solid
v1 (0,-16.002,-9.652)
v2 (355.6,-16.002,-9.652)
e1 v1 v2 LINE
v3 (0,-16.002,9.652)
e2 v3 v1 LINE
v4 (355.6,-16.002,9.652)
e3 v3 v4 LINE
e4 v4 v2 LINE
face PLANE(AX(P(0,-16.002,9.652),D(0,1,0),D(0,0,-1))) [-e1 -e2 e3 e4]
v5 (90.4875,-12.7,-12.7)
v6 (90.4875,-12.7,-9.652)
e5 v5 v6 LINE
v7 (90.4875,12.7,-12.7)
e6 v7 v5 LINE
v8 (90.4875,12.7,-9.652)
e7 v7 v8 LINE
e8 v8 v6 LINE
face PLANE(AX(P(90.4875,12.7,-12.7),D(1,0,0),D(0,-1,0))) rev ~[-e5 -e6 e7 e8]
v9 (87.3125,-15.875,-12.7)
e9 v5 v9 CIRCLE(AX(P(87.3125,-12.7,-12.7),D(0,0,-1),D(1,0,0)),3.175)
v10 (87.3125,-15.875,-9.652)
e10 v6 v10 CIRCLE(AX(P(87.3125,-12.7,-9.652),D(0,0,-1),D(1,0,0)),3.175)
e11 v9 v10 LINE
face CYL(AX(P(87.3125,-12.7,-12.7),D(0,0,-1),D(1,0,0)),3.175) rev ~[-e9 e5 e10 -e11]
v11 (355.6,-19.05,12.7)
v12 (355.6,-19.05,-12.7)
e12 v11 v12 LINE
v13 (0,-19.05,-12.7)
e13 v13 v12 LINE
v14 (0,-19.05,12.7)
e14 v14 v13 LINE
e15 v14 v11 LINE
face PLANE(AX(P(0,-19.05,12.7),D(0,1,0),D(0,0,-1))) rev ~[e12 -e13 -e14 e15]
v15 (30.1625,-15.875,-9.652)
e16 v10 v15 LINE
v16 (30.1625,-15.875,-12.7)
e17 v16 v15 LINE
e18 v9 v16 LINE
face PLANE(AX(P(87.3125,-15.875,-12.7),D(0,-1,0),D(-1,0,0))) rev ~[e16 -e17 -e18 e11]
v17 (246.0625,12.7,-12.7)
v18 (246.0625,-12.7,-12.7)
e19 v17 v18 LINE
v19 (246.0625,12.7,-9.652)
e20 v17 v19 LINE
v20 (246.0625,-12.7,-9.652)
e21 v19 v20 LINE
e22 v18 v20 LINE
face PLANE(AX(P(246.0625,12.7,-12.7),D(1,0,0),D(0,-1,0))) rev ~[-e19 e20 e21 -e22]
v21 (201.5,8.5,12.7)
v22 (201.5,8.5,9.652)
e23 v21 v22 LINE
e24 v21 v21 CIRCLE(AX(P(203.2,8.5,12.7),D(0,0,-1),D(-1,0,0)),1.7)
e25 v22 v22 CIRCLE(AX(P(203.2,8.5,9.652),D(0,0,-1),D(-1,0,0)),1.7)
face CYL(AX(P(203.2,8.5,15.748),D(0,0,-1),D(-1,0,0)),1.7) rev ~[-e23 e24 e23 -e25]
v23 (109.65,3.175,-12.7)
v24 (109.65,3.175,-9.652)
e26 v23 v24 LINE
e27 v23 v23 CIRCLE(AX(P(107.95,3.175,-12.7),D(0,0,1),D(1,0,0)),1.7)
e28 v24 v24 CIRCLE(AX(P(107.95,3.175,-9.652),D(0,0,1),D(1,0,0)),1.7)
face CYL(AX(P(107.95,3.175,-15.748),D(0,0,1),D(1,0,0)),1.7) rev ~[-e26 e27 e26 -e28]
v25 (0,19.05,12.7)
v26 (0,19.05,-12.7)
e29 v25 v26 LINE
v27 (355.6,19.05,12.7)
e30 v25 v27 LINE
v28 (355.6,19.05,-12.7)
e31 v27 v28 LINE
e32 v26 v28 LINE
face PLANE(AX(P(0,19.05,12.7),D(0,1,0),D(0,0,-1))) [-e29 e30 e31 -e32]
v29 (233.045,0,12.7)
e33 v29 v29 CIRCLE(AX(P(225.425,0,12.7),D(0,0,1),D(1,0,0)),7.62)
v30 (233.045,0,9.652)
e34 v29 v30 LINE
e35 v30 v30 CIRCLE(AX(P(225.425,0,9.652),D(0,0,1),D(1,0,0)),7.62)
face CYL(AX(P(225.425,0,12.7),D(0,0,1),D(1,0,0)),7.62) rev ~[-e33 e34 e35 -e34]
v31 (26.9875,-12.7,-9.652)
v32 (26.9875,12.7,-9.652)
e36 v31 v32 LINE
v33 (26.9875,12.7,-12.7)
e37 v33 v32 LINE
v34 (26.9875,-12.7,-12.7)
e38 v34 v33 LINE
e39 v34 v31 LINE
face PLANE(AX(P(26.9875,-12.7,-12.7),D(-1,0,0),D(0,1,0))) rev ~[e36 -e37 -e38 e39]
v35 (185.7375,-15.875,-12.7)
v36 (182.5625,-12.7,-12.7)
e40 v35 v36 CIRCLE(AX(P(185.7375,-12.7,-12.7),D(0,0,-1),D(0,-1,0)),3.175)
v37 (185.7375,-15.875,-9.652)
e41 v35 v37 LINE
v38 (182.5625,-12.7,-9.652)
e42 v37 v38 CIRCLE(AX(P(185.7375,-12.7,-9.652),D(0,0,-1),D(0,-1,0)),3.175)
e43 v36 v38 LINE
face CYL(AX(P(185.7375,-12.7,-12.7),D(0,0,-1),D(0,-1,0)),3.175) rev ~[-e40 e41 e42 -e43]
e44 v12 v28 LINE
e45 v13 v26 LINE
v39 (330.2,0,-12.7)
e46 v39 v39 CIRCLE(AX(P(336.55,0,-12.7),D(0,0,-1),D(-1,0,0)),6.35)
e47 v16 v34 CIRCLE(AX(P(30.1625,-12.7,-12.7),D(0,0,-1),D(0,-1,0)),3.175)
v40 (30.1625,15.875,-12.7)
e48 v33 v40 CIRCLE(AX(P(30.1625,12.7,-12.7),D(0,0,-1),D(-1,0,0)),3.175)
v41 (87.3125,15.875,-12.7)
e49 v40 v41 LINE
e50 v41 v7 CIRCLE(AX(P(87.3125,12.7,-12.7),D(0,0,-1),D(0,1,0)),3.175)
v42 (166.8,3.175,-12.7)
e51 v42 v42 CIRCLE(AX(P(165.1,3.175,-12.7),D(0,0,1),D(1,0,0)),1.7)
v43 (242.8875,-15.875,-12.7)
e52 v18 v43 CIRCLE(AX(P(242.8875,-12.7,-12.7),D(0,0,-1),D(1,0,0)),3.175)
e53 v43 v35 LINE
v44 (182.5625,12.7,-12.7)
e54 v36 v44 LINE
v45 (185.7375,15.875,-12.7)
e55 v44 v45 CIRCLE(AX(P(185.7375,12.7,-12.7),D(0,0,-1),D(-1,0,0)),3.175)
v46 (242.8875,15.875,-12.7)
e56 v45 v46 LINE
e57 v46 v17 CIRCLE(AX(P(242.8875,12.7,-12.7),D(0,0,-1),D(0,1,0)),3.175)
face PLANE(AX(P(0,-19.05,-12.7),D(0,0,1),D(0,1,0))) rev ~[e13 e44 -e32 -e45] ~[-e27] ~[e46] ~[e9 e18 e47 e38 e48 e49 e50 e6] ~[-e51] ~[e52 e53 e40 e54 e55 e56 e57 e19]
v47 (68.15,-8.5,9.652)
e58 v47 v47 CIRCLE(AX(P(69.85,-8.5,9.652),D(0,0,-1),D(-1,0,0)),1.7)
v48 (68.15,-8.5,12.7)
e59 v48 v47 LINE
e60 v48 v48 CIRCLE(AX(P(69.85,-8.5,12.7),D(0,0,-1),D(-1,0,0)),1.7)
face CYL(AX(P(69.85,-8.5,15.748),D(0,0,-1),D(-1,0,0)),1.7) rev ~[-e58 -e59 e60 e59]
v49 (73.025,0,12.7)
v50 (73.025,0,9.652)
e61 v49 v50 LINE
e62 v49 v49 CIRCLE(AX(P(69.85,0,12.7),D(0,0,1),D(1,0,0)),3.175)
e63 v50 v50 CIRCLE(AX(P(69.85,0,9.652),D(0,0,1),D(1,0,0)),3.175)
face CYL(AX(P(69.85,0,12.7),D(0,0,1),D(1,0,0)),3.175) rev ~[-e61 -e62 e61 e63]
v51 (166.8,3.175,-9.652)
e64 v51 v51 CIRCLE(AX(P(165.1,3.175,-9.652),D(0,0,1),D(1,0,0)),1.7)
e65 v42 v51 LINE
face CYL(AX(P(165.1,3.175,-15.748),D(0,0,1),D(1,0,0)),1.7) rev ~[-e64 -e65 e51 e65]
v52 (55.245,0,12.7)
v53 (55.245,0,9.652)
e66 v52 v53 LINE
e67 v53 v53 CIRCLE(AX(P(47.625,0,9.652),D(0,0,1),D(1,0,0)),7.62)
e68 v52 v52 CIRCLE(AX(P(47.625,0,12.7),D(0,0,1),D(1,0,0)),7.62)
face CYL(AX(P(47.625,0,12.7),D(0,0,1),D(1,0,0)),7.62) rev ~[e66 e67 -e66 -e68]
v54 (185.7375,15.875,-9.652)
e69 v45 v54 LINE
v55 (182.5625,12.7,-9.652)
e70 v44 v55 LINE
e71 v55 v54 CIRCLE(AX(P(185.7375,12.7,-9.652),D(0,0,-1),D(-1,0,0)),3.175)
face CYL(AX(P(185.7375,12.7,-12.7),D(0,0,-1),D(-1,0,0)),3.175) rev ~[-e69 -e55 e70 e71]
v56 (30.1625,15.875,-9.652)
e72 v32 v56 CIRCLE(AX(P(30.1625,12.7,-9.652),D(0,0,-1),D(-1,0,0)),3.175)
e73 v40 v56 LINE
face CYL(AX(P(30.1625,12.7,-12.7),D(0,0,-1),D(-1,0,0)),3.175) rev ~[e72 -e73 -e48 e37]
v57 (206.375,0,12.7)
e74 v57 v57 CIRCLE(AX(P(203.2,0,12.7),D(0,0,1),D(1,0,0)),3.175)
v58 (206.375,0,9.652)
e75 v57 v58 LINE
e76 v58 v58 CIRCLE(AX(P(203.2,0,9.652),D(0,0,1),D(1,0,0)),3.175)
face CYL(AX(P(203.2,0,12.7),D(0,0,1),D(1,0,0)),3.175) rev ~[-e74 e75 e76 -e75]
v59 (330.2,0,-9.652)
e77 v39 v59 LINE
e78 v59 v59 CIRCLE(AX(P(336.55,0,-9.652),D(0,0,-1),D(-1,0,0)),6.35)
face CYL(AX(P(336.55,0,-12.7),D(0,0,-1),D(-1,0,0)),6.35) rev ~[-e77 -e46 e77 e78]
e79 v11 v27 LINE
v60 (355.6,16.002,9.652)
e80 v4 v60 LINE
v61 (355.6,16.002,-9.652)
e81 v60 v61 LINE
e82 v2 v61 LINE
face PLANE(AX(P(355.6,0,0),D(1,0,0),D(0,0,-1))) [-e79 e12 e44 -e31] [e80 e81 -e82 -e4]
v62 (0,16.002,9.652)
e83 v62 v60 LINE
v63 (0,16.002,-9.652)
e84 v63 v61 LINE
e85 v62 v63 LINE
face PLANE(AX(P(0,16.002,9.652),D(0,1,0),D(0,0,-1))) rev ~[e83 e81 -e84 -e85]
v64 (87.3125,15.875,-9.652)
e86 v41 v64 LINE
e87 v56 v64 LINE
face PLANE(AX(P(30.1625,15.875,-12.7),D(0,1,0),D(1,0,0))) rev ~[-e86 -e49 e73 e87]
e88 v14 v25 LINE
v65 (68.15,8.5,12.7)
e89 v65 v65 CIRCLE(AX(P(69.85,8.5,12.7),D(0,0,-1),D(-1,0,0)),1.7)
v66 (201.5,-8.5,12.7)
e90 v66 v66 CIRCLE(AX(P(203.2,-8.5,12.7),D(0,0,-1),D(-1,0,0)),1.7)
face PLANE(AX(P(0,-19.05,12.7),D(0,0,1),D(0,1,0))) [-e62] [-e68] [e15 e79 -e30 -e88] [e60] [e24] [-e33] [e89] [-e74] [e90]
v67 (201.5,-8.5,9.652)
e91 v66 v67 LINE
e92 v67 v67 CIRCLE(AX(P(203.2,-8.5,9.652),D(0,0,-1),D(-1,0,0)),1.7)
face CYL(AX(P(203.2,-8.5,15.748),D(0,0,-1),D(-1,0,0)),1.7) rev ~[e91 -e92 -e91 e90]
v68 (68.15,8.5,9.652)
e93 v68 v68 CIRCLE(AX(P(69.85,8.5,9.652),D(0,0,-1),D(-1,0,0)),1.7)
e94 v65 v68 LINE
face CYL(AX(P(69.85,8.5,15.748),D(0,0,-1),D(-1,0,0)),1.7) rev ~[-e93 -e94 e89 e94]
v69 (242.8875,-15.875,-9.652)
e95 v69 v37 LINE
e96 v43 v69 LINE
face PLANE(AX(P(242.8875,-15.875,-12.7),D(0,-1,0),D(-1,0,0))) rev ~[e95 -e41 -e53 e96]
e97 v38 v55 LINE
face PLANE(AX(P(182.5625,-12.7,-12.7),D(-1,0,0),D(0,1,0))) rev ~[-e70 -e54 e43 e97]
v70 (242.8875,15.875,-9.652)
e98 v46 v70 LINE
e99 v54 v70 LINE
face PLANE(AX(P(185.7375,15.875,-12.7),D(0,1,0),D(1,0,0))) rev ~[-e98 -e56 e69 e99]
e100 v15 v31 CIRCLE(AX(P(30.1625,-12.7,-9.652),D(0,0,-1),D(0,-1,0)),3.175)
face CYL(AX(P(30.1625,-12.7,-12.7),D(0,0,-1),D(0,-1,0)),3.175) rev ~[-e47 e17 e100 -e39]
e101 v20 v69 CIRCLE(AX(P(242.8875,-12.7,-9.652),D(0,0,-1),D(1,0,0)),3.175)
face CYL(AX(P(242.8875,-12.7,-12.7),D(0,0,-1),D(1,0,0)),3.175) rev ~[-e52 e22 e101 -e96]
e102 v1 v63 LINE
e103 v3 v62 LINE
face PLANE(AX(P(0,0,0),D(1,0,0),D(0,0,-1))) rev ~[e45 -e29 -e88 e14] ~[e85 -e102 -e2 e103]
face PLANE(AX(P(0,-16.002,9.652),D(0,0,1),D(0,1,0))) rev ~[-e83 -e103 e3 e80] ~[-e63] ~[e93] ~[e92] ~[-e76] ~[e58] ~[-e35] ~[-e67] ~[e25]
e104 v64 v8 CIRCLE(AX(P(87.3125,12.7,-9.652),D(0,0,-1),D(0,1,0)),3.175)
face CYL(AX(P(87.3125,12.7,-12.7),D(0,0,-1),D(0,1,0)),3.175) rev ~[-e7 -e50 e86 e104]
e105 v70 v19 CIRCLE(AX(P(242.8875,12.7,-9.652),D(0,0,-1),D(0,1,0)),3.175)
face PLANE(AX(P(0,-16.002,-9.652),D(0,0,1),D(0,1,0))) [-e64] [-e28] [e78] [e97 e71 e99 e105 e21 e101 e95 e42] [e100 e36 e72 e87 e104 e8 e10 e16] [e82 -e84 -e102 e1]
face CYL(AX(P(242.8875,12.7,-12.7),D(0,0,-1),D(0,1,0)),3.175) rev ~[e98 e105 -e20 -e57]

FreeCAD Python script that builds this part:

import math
import FreeCAD as App
import Part
import Sketcher

V = App.Vector
Q = App.Units.Quantity

doc = App.newDocument("Part")
body = doc.addObject("PartDesign::Body", "Body")

sketch1 = body.newObject("Sketcher::SketchObject", "Sketch")
sketch1.AttachmentSupport = (doc.getObject("YZ_Plane"), [""])
sketch1.MapMode = "FlatFace"
sketch1.addGeometry([
    Part.LineSegment(V(19, 13, 0), V(-19, 13, 0)),
    Part.LineSegment(V(-19, 13, 0), V(-19, -13, 0)),
    Part.LineSegment(V(-19, -13, 0), V(19, -13, 0)),
    Part.LineSegment(V(19, -13, 0), V(19, 13, 0)),
    Part.LineSegment(V(-16, -10, 0), V(-16, 10, 0)),
    Part.LineSegment(V(-16, 10, 0), V(16, 10, 0)),
    Part.LineSegment(V(16, 10, 0), V(16, -10, 0)),
    Part.LineSegment(V(16, -10, 0), V(-16, -10, 0)),
], False)
sketch1.addConstraint([
    Sketcher.Constraint("Coincident", 0, 2, 1, 1),
    Sketcher.Constraint("Coincident", 1, 2, 2, 1),
    Sketcher.Constraint("Coincident", 2, 2, 3, 1),
    Sketcher.Constraint("Coincident", 3, 2, 0, 1),
    Sketcher.Constraint("Coincident", 4, 2, 5, 1),
    Sketcher.Constraint("Coincident", 5, 2, 6, 1),
    Sketcher.Constraint("Coincident", 6, 2, 7, 1),
    Sketcher.Constraint("Coincident", 7, 2, 4, 1),
    Sketcher.Constraint("Horizontal", 0),
    Sketcher.Constraint("Vertical", 1),
    Sketcher.Constraint("Horizontal", 2),
    Sketcher.Constraint("Vertical", 3),
    Sketcher.Constraint("Vertical", 4),
    Sketcher.Constraint("Horizontal", 5),
    Sketcher.Constraint("Vertical", 6),
    Sketcher.Constraint("Horizontal", 7),
    Sketcher.Constraint("Symmetric", 0, 2, 2, 2, -1, 1),
    Sketcher.Constraint("Symmetric", 4, 2, 6, 2, -1, 1),
    Sketcher.Constraint("DistanceY", 1, 2, 1, 1, Q("1 in")),
    Sketcher.Constraint("DistanceX", 0, 2, 0, 1, Q("1.5 in")),
    Sketcher.Constraint("DistanceX", 5, 1, 5, 2, Q("1.26 in")),
    Sketcher.Constraint("DistanceY", 4, 1, 4, 2, Q("0.76 in")),
])
pad1 = body.newObject("PartDesign::Pad", "Pad")
pad1.Profile = sketch1
pad1.Length = Q("14 in")

sketch2 = body.newObject("Sketcher::SketchObject", "Sketch001")
sketch2.AttachmentSupport = (doc.getObject("XY_Plane"), [""])
sketch2.MapMode = "FlatFace"
sketch2.AttachmentOffset = App.Placement(V(0, 0, -0.5 * 25.4), App.Rotation())
sketch2.addGeometry(Part.Circle(V(337, 0, 0), V(0, 0, 1), 6), False)
sketch2.addConstraint([
    Sketcher.Constraint("PointOnObject", 0, 3, -1),
    Sketcher.Constraint("Diameter", 0, Q("0.5 in")),
    Sketcher.Constraint("DistanceX", -1, 1, 0, 3, Q("13.25 in")),
])
pocket1 = body.newObject("PartDesign::Pocket", "Pocket")
pocket1.Profile = sketch2
pocket1.Type = "UpToFirst"
pocket1.Reversed = True

sketch3 = body.newObject("Sketcher::SketchObject", "Sketch002")
sketch3.AttachmentSupport = (doc.getObject("XY_Plane"), [""])
sketch3.MapMode = "FlatFace"
sketch3.AttachmentOffset = App.Placement(V(0, 0, 0.5 * 25.4), App.Rotation())
sketch3.addGeometry(Part.Circle(V(48, 0, 0), V(0, 0, 1), 8), False)
sketch3.addConstraint([
    Sketcher.Constraint("PointOnObject", 0, 3, -1),
    Sketcher.Constraint("Diameter", 0, Q("0.6 in")),
    Sketcher.Constraint("DistanceX", -1, 1, 0, 3, Q("1.875 in")),
])
pocket2 = body.newObject("PartDesign::Pocket", "Pocket001")
pocket2.Profile = sketch3
pocket2.Type = "UpToFirst"

sketch4 = body.newObject("Sketcher::SketchObject", "Sketch003")
sketch4.AttachmentSupport = (doc.getObject("XY_Plane"), [""])
sketch4.MapMode = "FlatFace"
sketch4.AttachmentOffset = App.Placement(V(0, 0, 0.5 * 25.4), App.Rotation())
sketch4.addGeometry(Part.Circle(V(225, 0, 0), V(0, 0, 1), 8), False)
sketch4.addConstraint([
    Sketcher.Constraint("PointOnObject", 0, 3, -1),
    Sketcher.Constraint("Diameter", 0, Q("0.6 in")),
    Sketcher.Constraint("DistanceX", -1, 1, 0, 3, Q("8.875 in")),
])
pocket3 = body.newObject("PartDesign::Pocket", "Pocket002")
pocket3.Profile = sketch4
pocket3.Type = "UpToFirst"

sketch5 = body.newObject("Sketcher::SketchObject", "Sketch004")
sketch5.AttachmentSupport = (doc.getObject("XY_Plane"), [""])
sketch5.MapMode = "FlatFace"
sketch5.AttachmentOffset = App.Placement(V(0, 0, 0.5 * 25.4), App.Rotation())
sketch5.addGeometry(Part.Circle(V(69.8, 0, 0), V(0, 0, 1), 3.2), False)
sketch5.addConstraint([
    Sketcher.Constraint("PointOnObject", 0, 3, -1),
    Sketcher.Constraint("Diameter", 0, Q("0.25 in")),
    Sketcher.Constraint("DistanceX", -1, 1, 0, 3, Q("2.75 in")),
])
pocket4 = body.newObject("PartDesign::Pocket", "Pocket003")
pocket4.Profile = sketch5
pocket4.Type = "UpToFirst"

sketch6 = body.newObject("Sketcher::SketchObject", "Sketch005")
sketch6.AttachmentSupport = (doc.getObject("XY_Plane"), [""])
sketch6.MapMode = "FlatFace"
sketch6.AttachmentOffset = App.Placement(V(0, 0, 0.5 * 25.4), App.Rotation())
sketch6.addGeometry(Part.Circle(V(203.2, 0, 0), V(0, 0, 1), 3.2), False)
sketch6.addConstraint([
    Sketcher.Constraint("PointOnObject", 0, 3, -1),
    Sketcher.Constraint("Diameter", 0, Q("0.25 in")),
    Sketcher.Constraint("DistanceX", -1, 1, 0, 3, Q("8 in")),
])
pocket5 = body.newObject("PartDesign::Pocket", "Pocket004")
pocket5.Profile = sketch6
pocket5.Type = "UpToFirst"

sketch7 = body.newObject("Sketcher::SketchObject", "Sketch006")
sketch7.AttachmentSupport = (doc.getObject("XY_Plane"), [""])
sketch7.MapMode = "FlatFace"
sketch7.AttachmentOffset = App.Placement(V(0, 0, -0.5 * 25.4), App.Rotation())
sketch7.addGeometry([
    Part.LineSegment(V(242.9, -15.9, 0), V(185.7, -15.9, 0)),
    Part.ArcOfCircle(Part.Circle(V(185.7, -12.7, 0), V(0, 0, 1), 3.2), math.radians(-180), math.radians(-90)),
    Part.LineSegment(V(182.6, -12.7, 0), V(182.6, 12.7, 0)),
    Part.ArcOfCircle(Part.Circle(V(185.7, 12.7, 0), V(0, 0, 1), 3.2), math.radians(90), math.radians(180)),
    Part.LineSegment(V(185.7, 15.9, 0), V(242.9, 15.9, 0)),
    Part.ArcOfCircle(Part.Circle(V(242.9, 12.7, 0), V(0, 0, 1), 3.2), math.radians(0), math.radians(90)),
    Part.LineSegment(V(246.1, 12.7, 0), V(246.1, -12.7, 0)),
    Part.ArcOfCircle(Part.Circle(V(242.9, -12.7, 0), V(0, 0, 1), 3.2), math.radians(-90), math.radians(0)),
], False)
sketch7.addConstraint([
    Sketcher.Constraint("Tangent", 0, 2, 1, 2),
    Sketcher.Constraint("Tangent", 1, 1, 2, 1),
    Sketcher.Constraint("Tangent", 2, 2, 3, 2),
    Sketcher.Constraint("Tangent", 3, 1, 4, 1),
    Sketcher.Constraint("Tangent", 4, 2, 5, 2),
    Sketcher.Constraint("Tangent", 5, 1, 6, 1),
    Sketcher.Constraint("Tangent", 6, 2, 7, 2),
    Sketcher.Constraint("Tangent", 7, 1, 0, 1),
    Sketcher.Constraint("Horizontal", 0),
    Sketcher.Constraint("Vertical", 2),
    Sketcher.Constraint("Horizontal", 4),
    Sketcher.Constraint("Vertical", 6),
    Sketcher.Constraint("Equal", 1, 3),
    Sketcher.Constraint("Equal", 3, 5),
    Sketcher.Constraint("Equal", 5, 7),
    Sketcher.Constraint("DistanceY", 2, 1, 2, 2, Q("1 in")),
    Sketcher.Constraint("Radius", 1, Q("0.125 in")),
    Sketcher.Constraint("DistanceX", 0, 2, 0, 1, Q("2.25 in")),
    Sketcher.Constraint("DistanceY", 1, 3, -1, 1, Q("0.5 in")),
    Sketcher.Constraint("DistanceX", -1, 1, 1, 3, Q("7.3125 in")),
])
pocket6 = body.newObject("PartDesign::Pocket", "Pocket005")
pocket6.Profile = sketch7
pocket6.Type = "UpToFirst"
pocket6.Reversed = True

sketch8 = body.newObject("Sketcher::SketchObject", "Sketch007")
sketch8.AttachmentSupport = (doc.getObject("XY_Plane"), [""])
sketch8.MapMode = "FlatFace"
sketch8.AttachmentOffset = App.Placement(V(0, 0, -0.5 * 25.4), App.Rotation())
sketch8.addGeometry([
    Part.LineSegment(V(87.3, -15.9, 0), V(30.2, -15.9, 0)),
    Part.ArcOfCircle(Part.Circle(V(30.2, -12.7, 0), V(0, 0, 1), 3.2), math.radians(-180), math.radians(-90)),
    Part.LineSegment(V(27, -12.7, 0), V(27, 12.7, 0)),
    Part.ArcOfCircle(Part.Circle(V(30.2, 12.7, 0), V(0, 0, 1), 3.2), math.radians(90), math.radians(180)),
    Part.LineSegment(V(30.2, 15.9, 0), V(87.3, 15.9, 0)),
    Part.ArcOfCircle(Part.Circle(V(87.3, 12.7, 0), V(0, 0, 1), 3.2), math.radians(0), math.radians(90)),
    Part.LineSegment(V(90.5, 12.7, 0), V(90.5, -12.7, 0)),
    Part.ArcOfCircle(Part.Circle(V(87.3, -12.7, 0), V(0, 0, 1), 3.2), math.radians(-90), math.radians(0)),
], False)
sketch8.addConstraint([
    Sketcher.Constraint("Tangent", 0, 2, 1, 2),
    Sketcher.Constraint("Tangent", 1, 1, 2, 1),
    Sketcher.Constraint("Tangent", 2, 2, 3, 2),
    Sketcher.Constraint("Tangent", 3, 1, 4, 1),
    Sketcher.Constraint("Tangent", 4, 2, 5, 2),
    Sketcher.Constraint("Tangent", 5, 1, 6, 1),
    Sketcher.Constraint("Tangent", 6, 2, 7, 2),
    Sketcher.Constraint("Tangent", 7, 1, 0, 1),
    Sketcher.Constraint("Horizontal", 0),
    Sketcher.Constraint("Vertical", 2),
    Sketcher.Constraint("Horizontal", 4),
    Sketcher.Constraint("Vertical", 6),
    Sketcher.Constraint("Equal", 1, 3),
    Sketcher.Constraint("Equal", 3, 5),
    Sketcher.Constraint("Equal", 5, 7),
    Sketcher.Constraint("DistanceY", 2, 1, 2, 2, Q("1 in")),
    Sketcher.Constraint("Radius", 1, Q("0.125 in")),
    Sketcher.Constraint("DistanceX", 0, 2, 0, 1, Q("2.25 in")),
    Sketcher.Constraint("DistanceY", 1, 3, -1, 1, Q("0.5 in")),
    Sketcher.Constraint("DistanceX", -1, 1, 1, 3, Q("1.1875 in")),
])
pocket7 = body.newObject("PartDesign::Pocket", "Pocket006")
pocket7.Profile = sketch8
pocket7.Type = "UpToFirst"
pocket7.Reversed = True

sketch9 = body.newObject("Sketcher::SketchObject", "Sketch008")
sketch9.AttachmentSupport = (doc.getObject("XY_Plane"), [""])
sketch9.MapMode = "FlatFace"
sketch9.AttachmentOffset = App.Placement(V(0, 0, -0.5 * 25.4), App.Rotation())
sketch9.addGeometry([
    Part.Circle(V(165.1, 3.2, 0), V(0, 0, 1), 1.7),
    Part.Circle(V(108, 3.2, 0), V(0, 0, 1), 1.7),
], False)
sketch9.addConstraint([
    Sketcher.Constraint("Equal", 0, 1),
    Sketcher.Constraint("Horizontal", 0, 3, 1, 3),
    Sketcher.Constraint("DistanceX", -1, 1, 0, 3, Q("6.5 in")),
    Sketcher.Constraint("Diameter", 0, Q("3.4 mm")),
    Sketcher.Constraint("DistanceX", -1, 1, 1, 3, Q("4.25 in")),
    Sketcher.Constraint("DistanceY", -1, 1, 0, 3, Q("0.125 in")),
])
doc.recompute()
hole = body.newObject("PartDesign::Hole", "Hole")
hole.Profile = sketch9
hole.ThreadType = "None"
hole.Diameter = 3.4
hole.DepthType = "Dimension"
hole.Depth = Q("0.12 in")
hole.DrillPoint = "Flat"
hole.Reversed = True

sketch10 = body.newObject("Sketcher::SketchObject", "Sketch009")
sketch10.AttachmentSupport = (doc.getObject("XY_Plane"), [""])
sketch10.MapMode = "FlatFace"
sketch10.AttachmentOffset = App.Placement(V(0, 0, 0.5 * 25.4), App.Rotation())
sketch10.addGeometry([
    Part.Circle(V(69.8, 8.5, 0), V(0, 0, 1), 1.7),
    Part.Circle(V(69.8, -8.5, 0), V(0, 0, 1), 1.7),
    Part.Circle(V(203.2, 8.5, 0), V(0, 0, 1), 1.7),
    Part.Circle(V(203.2, -8.5, 0), V(0, 0, 1), 1.7),
], False)
sketch10.addConstraint([
    Sketcher.Constraint("Equal", 0, 1),
    Sketcher.Constraint("Equal", 1, 2),
    Sketcher.Constraint("Equal", 2, 3),
    Sketcher.Constraint("Symmetric", 0, 3, 1, 3, -1),
    Sketcher.Constraint("Symmetric", 2, 3, 3, 3, -1),
    Sketcher.Constraint("Horizontal", 0, 3, 2, 3),
    Sketcher.Constraint("DistanceX", -1, 1, 2, 3, Q("8 in")),
    Sketcher.Constraint("Diameter", 0, Q("3.4 mm")),
    Sketcher.Constraint("DistanceX", -1, 1, 0, 3, Q("2.75 in")),
    Sketcher.Constraint("DistanceY", -1, 1, 0, 3, Q("8.5 mm")),
])
doc.recompute()
hole2 = body.newObject("PartDesign::Hole", "Hole001")
hole2.Profile = sketch10
hole2.ThreadType = "None"
hole2.Diameter = 3.4
hole2.DepthType = "Dimension"
hole2.Depth = Q("0.12 in")
hole2.DrillPoint = "Flat"

doc.recompute()
